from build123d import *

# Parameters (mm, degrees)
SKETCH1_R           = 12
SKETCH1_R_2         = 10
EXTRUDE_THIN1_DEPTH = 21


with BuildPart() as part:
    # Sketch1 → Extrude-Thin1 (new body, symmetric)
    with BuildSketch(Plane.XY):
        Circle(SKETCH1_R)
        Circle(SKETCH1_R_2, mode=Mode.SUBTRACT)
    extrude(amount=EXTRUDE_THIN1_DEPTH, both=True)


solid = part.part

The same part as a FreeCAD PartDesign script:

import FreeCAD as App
import Part
import Sketcher
Q = App.Units.Quantity

doc = App.newDocument("Part")
body = doc.addObject("PartDesign::Body", "Body")

# Sketch on XY plane
sketch1 = body.newObject("Sketcher::SketchObject", "Sketch")
sketch1.AttachmentSupport = (doc.getObject("XY_Plane"), [""])
sketch1.MapMode = "FlatFace"
sketch1.addGeometry(Part.Circle(App.Vector(0, 0, 0), App.Vector(0, 0, 1), 12), False)
sketch1.addGeometry(Part.Circle(App.Vector(0, 0, 0), App.Vector(0, 0, 1), 10), False)
sketch1.addConstraint(Sketcher.Constraint("Coincident", 0, 3, -1, 1))
sketch1.addConstraint(Sketcher.Constraint("Coincident", 1, 3, -1, 1))
sketch1.addConstraint(Sketcher.Constraint("Diameter", 0, Q("24 mm")))
sketch1.addConstraint(Sketcher.Constraint("Diameter", 1, Q("20 mm")))
pad1 = body.newObject("PartDesign::Pad", "Pad")
pad1.Profile = sketch1
pad1.Length = 42
pad1.Midplane = True

doc.recompute()
